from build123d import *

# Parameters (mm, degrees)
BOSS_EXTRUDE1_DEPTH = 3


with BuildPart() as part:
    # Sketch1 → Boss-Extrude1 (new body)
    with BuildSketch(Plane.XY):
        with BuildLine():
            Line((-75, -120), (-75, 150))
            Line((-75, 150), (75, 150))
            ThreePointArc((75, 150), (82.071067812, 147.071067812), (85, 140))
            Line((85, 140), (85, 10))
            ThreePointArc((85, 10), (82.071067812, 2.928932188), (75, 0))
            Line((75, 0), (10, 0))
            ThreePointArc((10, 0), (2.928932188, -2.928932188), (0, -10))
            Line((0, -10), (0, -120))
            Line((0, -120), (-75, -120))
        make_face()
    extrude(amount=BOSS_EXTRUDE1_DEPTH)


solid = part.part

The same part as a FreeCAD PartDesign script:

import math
import FreeCAD as App
import Part
import Sketcher
Q = App.Units.Quantity

doc = App.newDocument("Part")
body = doc.addObject("PartDesign::Body", "Body")

sketch1 = body.newObject("Sketcher::SketchObject", "Sketch")
sketch1.AttachmentSupport = (doc.getObject("XY_Plane"), [""])
sketch1.MapMode = "FlatFace"
sketch1.addGeometry(Part.LineSegment(App.Vector(-75, 150, 0), App.Vector(-75, -120, 0)), False)
sketch1.addGeometry(Part.LineSegment(App.Vector(-75, -120, 0), App.Vector(0, -120, 0)), False)
sketch1.addGeometry(Part.LineSegment(App.Vector(0, -120, 0), App.Vector(0, -10, 0)), False)
sketch1.addGeometry(Part.ArcOfCircle(Part.Circle(App.Vector(10, -10, 0), App.Vector(0, 0, 1), 10), math.radians(90), math.radians(180)), False)
sketch1.addGeometry(Part.LineSegment(App.Vector(10, 0, 0), App.Vector(75, 0, 0)), False)
sketch1.addGeometry(Part.ArcOfCircle(Part.Circle(App.Vector(75, 10, 0), App.Vector(0, 0, 1), 10), math.radians(-90), math.radians(0)), False)
sketch1.addGeometry(Part.LineSegment(App.Vector(85, 10, 0), App.Vector(85, 140, 0)), False)
sketch1.addGeometry(Part.ArcOfCircle(Part.Circle(App.Vector(75, 140, 0), App.Vector(0, 0, 1), 10), math.radians(0), math.radians(90)), False)
sketch1.addGeometry(Part.LineSegment(App.Vector(75, 150, 0), App.Vector(-75, 150, 0)), False)
sketch1.addConstraint(Sketcher.Constraint("Coincident", 0, 2, 1, 1))
sketch1.addConstraint(Sketcher.Constraint("Coincident", 1, 2, 2, 1))
sketch1.addConstraint(Sketcher.Constraint("Tangent", 2, 2, 3, 2))
sketch1.addConstraint(Sketcher.Constraint("Tangent", 3, 1, 4, 1))
sketch1.addConstraint(Sketcher.Constraint("Tangent", 4, 2, 5, 1))
sketch1.addConstraint(Sketcher.Constraint("Tangent", 5, 2, 6, 1))
sketch1.addConstraint(Sketcher.Constraint("Tangent", 6, 2, 7, 1))
sketch1.addConstraint(Sketcher.Constraint("Tangent", 7, 2, 8, 1))
sketch1.addConstraint(Sketcher.Constraint("Coincident", 8, 2, 0, 1))
sketch1.addConstraint(Sketcher.Constraint("Vertical", 0))
sketch1.addConstraint(Sketcher.Constraint("Horizontal", 1))
sketch1.addConstraint(Sketcher.Constraint("Vertical", 2))
sketch1.addConstraint(Sketcher.Constraint("Horizontal", 4))
sketch1.addConstraint(Sketcher.Constraint("Vertical", 6))
sketch1.addConstraint(Sketcher.Constraint("Horizontal", 8))
sketch1.addConstraint(Sketcher.Constraint("Equal", 3, 5))
sketch1.addConstraint(Sketcher.Constraint("Equal", 5, 7))
sketch1.addConstraint(Sketcher.Constraint("PointOnObject", 1, 2, -2))
sketch1.addConstraint(Sketcher.Constraint("PointOnObject", 3, 1, -1))
sketch1.addConstraint(Sketcher.Constraint("Radius", 3, Q("10 mm")))
sketch1.addConstraint(Sketcher.Constraint("DistanceX", 1, 1, 1, 2, Q("75 mm")))
sketch1.addConstraint(Sketcher.Constraint("DistanceX", 4, 1, 4, 2, Q("65 mm")))
sketch1.addConstraint(Sketcher.Constraint("DistanceY", 0, 2, 0, 1, Q("270 mm")))
sketch1.addConstraint(Sketcher.Constraint("DistanceY", 2, 1, 2, 2, Q("110 mm")))
pad1 = body.newObject("PartDesign::Pad", "Pad")
pad1.Profile = sketch1
pad1.Length = 3

doc.recompute()
